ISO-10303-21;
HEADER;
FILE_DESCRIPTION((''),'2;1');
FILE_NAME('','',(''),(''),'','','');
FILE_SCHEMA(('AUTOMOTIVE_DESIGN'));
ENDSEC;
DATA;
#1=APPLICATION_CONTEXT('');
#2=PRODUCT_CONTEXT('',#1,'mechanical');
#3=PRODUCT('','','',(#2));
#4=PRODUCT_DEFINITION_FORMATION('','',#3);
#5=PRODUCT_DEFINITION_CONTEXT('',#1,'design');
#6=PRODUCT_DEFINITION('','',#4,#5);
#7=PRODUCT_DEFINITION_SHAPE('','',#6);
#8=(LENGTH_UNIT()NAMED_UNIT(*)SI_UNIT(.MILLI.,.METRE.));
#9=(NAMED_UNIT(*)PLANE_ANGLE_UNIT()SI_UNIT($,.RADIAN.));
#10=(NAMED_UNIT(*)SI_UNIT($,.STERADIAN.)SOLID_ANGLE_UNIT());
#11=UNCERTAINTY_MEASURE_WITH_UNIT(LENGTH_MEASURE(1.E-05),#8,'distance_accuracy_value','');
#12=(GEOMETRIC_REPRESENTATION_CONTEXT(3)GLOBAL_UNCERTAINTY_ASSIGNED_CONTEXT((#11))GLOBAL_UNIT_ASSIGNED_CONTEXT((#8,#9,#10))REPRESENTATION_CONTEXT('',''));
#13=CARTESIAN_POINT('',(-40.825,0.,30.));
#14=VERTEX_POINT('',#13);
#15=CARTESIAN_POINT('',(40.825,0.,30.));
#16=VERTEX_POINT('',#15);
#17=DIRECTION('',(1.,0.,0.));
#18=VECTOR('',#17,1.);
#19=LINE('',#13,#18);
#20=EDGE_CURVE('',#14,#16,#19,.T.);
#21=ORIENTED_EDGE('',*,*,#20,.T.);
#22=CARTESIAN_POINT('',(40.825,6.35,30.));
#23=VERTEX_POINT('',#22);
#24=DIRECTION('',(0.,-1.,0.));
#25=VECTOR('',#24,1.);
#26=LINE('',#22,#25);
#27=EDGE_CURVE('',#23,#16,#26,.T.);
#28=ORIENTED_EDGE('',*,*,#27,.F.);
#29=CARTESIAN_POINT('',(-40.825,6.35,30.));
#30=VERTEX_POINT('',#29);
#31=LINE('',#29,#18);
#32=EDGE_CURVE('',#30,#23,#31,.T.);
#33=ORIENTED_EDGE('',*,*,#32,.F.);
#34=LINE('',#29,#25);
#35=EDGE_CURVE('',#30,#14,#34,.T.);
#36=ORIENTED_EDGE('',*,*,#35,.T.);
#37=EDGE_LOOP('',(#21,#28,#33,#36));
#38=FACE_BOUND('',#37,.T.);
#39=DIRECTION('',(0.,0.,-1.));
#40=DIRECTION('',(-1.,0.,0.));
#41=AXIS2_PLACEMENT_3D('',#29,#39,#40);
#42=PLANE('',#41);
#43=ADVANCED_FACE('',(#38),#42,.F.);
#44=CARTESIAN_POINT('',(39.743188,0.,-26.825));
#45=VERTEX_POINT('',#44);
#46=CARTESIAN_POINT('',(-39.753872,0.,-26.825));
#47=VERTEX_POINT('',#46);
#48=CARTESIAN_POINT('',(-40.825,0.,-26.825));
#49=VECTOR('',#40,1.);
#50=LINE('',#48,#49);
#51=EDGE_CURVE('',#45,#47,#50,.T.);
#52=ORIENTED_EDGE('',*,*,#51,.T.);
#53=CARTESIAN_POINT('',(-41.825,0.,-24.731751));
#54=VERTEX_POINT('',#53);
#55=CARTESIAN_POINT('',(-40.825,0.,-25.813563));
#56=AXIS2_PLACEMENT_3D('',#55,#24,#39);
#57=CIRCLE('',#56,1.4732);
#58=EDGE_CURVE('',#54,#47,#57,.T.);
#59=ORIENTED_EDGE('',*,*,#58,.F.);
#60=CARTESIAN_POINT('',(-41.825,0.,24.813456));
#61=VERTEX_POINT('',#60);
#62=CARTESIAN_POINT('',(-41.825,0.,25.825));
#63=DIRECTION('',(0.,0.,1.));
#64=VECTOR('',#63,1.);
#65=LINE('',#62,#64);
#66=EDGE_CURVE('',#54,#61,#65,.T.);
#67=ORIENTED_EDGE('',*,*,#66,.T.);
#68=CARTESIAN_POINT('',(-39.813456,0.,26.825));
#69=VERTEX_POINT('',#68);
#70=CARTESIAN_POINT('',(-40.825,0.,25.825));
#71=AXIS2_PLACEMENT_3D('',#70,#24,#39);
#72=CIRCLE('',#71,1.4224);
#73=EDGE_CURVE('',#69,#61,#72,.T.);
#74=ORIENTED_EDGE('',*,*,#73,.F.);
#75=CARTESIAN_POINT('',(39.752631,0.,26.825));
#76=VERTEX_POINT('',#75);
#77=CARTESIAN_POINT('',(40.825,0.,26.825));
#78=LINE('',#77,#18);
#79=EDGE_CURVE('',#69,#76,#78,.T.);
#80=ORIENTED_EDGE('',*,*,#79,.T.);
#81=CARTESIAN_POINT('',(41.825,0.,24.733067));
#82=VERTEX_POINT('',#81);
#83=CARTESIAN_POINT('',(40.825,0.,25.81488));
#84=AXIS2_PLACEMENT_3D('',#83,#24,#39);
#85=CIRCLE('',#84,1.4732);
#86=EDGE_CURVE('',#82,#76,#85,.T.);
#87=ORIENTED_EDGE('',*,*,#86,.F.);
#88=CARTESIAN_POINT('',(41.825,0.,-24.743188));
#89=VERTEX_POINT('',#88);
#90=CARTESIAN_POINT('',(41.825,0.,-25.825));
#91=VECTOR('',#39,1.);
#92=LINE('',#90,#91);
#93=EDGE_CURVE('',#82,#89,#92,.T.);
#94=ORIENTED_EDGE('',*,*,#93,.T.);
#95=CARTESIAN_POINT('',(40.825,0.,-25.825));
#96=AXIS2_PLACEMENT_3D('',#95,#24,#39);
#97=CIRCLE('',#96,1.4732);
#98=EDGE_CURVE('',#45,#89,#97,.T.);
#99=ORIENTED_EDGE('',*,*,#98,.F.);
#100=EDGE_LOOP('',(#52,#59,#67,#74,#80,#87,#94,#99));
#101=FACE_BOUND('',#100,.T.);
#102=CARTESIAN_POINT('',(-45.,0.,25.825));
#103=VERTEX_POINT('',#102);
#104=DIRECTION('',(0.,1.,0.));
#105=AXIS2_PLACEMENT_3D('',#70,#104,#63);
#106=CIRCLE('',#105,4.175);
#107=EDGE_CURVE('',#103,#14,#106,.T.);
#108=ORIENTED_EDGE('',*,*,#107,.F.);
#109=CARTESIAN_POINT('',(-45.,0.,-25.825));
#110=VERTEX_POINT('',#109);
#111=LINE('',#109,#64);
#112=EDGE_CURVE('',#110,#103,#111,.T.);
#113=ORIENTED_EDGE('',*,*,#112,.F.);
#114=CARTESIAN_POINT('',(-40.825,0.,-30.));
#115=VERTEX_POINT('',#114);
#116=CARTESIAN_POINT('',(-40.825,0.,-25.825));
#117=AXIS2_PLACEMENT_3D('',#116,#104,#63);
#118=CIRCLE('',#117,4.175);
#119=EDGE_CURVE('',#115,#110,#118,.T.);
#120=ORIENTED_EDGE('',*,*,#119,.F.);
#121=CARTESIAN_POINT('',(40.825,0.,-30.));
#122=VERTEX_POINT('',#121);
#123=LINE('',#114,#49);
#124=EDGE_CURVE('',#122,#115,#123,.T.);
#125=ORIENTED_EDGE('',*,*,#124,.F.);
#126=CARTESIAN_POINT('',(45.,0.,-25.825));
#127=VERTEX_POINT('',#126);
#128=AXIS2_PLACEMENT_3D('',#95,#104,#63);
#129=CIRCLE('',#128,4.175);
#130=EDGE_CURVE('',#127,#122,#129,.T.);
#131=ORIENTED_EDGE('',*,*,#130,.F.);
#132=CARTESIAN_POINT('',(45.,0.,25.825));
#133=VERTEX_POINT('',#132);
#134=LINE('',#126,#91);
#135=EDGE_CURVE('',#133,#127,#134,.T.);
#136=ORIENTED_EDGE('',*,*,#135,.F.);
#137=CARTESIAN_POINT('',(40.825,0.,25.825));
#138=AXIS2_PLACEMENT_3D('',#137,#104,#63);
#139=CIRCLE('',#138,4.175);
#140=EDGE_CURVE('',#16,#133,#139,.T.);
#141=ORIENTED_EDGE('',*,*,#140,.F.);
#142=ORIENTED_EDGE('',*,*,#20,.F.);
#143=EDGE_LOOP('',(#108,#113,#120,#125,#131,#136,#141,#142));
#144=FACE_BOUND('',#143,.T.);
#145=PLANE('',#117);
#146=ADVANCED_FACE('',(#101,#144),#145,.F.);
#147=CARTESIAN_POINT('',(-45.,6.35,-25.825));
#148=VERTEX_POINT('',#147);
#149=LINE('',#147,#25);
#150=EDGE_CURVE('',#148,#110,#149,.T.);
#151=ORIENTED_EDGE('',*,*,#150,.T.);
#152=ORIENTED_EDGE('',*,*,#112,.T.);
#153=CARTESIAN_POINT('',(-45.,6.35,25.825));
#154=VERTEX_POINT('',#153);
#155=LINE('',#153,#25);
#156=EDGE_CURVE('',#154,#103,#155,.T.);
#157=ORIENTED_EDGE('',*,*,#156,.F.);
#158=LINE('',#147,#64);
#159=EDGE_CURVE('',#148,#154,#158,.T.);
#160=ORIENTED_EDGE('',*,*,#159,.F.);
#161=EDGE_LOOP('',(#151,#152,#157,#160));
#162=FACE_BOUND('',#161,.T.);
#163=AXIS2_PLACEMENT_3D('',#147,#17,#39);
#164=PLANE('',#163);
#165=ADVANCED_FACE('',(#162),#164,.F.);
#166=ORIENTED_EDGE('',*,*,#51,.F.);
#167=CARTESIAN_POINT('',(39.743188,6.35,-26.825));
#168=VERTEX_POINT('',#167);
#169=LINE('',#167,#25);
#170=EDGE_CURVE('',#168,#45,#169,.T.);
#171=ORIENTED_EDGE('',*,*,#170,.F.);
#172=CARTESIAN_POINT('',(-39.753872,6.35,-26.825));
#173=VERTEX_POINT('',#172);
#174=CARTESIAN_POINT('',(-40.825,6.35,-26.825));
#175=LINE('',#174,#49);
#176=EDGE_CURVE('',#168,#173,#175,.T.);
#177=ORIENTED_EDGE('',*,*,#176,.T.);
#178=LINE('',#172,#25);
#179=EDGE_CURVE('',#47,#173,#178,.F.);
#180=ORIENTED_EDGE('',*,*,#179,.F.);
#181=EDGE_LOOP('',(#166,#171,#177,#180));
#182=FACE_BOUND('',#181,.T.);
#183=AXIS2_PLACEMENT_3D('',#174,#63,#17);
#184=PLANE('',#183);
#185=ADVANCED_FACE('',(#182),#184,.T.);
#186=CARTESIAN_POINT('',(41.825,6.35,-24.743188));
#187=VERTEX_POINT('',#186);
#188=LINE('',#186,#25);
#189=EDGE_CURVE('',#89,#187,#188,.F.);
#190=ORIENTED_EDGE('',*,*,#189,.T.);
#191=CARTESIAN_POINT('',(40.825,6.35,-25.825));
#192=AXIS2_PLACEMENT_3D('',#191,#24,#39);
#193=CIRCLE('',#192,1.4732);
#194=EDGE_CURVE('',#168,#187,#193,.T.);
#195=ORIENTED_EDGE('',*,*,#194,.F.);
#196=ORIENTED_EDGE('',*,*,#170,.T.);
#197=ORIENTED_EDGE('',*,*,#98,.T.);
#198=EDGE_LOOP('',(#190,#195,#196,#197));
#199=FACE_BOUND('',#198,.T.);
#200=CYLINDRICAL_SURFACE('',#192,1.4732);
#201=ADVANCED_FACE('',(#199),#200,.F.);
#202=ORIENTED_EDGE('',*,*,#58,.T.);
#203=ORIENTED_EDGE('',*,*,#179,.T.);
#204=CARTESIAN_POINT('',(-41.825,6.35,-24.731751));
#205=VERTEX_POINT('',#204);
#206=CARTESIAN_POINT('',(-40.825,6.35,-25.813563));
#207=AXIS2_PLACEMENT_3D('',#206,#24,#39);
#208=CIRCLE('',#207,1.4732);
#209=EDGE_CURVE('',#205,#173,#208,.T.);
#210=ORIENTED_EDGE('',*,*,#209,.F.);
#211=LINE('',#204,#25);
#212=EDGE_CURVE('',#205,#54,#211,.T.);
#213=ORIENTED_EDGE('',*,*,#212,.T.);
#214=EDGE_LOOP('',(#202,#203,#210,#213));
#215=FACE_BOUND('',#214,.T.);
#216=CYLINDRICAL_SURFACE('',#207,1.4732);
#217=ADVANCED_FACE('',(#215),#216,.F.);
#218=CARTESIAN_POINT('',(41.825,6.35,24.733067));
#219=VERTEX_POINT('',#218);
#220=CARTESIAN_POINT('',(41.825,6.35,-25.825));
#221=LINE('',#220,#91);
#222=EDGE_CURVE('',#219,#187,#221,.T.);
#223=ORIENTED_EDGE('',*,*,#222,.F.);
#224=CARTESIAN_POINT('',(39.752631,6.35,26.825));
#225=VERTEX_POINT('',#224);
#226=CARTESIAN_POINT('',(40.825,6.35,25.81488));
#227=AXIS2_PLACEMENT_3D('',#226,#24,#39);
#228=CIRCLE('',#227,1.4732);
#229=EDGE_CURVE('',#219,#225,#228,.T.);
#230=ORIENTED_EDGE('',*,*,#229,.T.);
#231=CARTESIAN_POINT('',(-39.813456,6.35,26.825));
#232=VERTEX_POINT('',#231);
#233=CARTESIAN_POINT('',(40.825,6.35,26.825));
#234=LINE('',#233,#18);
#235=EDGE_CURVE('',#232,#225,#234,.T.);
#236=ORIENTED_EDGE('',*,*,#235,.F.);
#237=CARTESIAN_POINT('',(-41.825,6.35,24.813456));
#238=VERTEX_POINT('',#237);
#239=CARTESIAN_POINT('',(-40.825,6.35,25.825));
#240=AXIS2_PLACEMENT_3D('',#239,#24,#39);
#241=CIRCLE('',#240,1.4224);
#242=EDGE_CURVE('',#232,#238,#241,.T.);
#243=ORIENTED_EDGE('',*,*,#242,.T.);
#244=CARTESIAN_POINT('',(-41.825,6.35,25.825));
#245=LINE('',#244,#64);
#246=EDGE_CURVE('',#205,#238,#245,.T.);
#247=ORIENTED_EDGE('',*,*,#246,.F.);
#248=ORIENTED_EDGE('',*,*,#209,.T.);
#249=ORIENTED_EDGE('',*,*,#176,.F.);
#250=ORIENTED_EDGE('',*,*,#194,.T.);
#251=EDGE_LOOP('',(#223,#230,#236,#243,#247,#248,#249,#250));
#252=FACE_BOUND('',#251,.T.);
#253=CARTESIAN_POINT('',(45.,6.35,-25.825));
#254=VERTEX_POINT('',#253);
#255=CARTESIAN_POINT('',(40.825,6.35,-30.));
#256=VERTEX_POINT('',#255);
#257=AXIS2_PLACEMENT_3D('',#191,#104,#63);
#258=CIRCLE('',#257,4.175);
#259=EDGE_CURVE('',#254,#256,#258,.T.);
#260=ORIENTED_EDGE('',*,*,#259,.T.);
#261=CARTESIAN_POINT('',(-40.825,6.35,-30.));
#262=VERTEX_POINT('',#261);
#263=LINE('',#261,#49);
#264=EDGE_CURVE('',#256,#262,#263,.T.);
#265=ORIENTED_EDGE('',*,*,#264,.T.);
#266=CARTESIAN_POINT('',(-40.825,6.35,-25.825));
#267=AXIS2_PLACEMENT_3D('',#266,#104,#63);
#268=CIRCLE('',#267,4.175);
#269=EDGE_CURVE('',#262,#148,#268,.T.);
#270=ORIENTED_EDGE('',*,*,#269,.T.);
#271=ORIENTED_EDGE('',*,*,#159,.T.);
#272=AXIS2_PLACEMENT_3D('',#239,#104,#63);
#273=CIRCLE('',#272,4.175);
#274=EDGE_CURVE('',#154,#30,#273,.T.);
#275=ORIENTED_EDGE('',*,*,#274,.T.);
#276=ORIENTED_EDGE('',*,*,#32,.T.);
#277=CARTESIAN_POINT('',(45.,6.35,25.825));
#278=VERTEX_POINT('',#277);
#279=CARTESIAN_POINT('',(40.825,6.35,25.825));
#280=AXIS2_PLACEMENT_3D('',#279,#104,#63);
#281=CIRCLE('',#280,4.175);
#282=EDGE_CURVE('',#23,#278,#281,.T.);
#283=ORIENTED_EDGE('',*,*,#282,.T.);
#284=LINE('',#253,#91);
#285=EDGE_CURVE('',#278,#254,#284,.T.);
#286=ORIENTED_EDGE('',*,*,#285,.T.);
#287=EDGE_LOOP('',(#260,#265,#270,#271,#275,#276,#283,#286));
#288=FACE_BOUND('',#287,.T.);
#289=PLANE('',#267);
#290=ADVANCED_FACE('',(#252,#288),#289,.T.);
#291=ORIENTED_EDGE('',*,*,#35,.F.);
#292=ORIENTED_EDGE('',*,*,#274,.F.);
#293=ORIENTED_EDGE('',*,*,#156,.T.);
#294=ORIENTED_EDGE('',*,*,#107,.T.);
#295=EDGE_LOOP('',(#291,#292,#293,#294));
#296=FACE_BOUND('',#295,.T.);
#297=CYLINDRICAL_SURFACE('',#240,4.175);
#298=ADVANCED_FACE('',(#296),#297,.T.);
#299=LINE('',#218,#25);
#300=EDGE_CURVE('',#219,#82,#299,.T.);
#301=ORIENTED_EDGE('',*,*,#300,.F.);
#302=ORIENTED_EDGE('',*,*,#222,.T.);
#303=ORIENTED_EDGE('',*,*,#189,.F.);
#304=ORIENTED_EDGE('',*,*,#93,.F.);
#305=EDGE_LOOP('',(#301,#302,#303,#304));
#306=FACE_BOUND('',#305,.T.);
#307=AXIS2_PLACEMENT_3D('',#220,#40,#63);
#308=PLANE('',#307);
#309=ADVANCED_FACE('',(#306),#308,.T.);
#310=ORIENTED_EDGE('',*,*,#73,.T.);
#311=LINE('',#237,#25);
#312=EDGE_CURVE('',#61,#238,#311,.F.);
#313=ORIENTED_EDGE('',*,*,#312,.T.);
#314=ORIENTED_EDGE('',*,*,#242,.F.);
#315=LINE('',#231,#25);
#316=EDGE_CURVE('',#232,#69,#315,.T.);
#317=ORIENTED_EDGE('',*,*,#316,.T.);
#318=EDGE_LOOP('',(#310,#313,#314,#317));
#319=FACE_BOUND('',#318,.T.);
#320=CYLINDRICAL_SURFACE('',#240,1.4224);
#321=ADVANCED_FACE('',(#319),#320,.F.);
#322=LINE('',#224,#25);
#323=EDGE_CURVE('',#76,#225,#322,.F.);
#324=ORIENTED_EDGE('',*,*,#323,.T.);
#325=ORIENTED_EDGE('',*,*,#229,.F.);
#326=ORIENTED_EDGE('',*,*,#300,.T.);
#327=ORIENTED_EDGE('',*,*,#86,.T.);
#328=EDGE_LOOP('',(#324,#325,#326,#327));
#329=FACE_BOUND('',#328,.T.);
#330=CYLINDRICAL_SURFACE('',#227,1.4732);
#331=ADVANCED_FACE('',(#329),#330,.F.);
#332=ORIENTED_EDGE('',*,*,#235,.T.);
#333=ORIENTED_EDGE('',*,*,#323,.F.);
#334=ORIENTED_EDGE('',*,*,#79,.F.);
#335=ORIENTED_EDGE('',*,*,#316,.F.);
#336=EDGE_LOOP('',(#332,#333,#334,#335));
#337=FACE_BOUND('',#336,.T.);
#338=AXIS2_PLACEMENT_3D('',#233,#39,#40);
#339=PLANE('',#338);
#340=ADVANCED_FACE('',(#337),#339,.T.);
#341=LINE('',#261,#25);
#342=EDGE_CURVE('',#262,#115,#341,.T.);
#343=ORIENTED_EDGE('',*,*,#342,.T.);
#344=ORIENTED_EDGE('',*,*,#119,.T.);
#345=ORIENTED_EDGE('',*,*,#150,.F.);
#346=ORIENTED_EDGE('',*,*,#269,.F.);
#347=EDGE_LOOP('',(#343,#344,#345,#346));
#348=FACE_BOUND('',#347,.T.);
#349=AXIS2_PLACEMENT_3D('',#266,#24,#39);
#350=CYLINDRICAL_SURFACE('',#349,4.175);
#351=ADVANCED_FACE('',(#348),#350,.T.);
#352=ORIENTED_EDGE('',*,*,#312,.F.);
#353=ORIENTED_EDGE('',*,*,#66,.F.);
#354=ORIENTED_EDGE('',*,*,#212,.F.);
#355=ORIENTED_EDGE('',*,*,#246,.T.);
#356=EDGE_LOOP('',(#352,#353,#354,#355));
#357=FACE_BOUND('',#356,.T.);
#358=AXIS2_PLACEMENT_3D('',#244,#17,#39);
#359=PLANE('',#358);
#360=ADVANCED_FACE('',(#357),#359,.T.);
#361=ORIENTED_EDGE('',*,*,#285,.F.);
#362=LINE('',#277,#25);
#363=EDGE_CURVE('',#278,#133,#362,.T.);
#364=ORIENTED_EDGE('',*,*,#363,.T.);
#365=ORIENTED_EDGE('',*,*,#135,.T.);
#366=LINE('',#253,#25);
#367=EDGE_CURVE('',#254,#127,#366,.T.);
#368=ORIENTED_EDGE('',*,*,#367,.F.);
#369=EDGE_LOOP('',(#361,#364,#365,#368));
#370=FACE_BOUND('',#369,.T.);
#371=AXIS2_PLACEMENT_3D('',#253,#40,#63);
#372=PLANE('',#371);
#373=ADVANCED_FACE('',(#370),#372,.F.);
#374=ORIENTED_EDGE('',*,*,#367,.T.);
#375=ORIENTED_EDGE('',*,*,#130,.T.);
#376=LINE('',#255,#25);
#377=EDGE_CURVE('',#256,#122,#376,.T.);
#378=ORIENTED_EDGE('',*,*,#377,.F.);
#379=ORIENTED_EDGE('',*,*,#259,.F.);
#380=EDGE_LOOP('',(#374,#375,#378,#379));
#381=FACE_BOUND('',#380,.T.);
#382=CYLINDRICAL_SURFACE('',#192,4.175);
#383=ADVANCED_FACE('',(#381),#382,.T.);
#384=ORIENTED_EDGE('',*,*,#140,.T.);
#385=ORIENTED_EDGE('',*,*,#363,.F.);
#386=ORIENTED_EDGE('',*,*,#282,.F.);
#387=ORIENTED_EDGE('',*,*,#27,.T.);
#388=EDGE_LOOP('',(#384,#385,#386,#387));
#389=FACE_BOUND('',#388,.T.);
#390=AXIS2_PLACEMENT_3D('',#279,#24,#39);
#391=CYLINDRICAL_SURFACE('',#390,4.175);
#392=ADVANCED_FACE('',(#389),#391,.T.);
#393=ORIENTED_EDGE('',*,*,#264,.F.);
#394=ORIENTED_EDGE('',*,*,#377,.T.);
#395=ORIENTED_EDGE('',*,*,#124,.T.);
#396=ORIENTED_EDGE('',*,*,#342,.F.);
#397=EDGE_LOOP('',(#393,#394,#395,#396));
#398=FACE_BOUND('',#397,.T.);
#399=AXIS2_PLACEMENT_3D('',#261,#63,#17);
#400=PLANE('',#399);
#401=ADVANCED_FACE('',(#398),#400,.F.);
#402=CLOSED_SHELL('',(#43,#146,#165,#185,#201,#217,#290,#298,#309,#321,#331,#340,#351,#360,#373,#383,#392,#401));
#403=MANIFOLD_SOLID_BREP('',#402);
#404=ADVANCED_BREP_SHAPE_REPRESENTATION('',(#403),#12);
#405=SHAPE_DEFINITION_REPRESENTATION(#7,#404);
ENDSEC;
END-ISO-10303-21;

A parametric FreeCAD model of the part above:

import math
import FreeCAD as App
import Part
import Sketcher

V = App.Vector
Q = App.Units.Quantity

doc = App.newDocument("Part")
body = doc.addObject("PartDesign::Body", "Body")

sketch1 = body.newObject("Sketcher::SketchObject", "Sketch")
sketch1.AttachmentSupport = (doc.getObject("XZ_Plane"), [""])
sketch1.MapMode = "FlatFace"
sketch1.addGeometry([
    Part.LineSegment(V(-45, -25.8, 0), V(-45, 25.8, 0)),
    Part.ArcOfCircle(Part.Circle(V(-40.8, 25.8, 0), V(0, 0, 1), 4.2), math.radians(90), math.radians(180)),
    Part.LineSegment(V(-40.8, 30, 0), V(40.8, 30, 0)),
    Part.ArcOfCircle(Part.Circle(V(40.8, 25.8, 0), V(0, 0, 1), 4.2), math.radians(0), math.radians(90)),
    Part.LineSegment(V(45, 25.8, 0), V(45, -25.8, 0)),
    Part.ArcOfCircle(Part.Circle(V(40.8, -25.8, 0), V(0, 0, 1), 4.2), math.radians(-90), math.radians(0)),
    Part.LineSegment(V(40.8, -30, 0), V(-40.8, -30, 0)),
    Part.ArcOfCircle(Part.Circle(V(-40.8, -25.8, 0), V(0, 0, 1), 4.2), math.radians(-180), math.radians(-90)),
    Part.ArcOfCircle(Part.Circle(V(-40.8, 25.8, 0), V(0, 0, 1), 1), math.radians(90), math.radians(180)),
    Part.LineSegment(V(-41.8, 25.8, 0), V(-41.8, -25.8, 0)),
    Part.ArcOfCircle(Part.Circle(V(-40.8, -25.8, 0), V(0, 0, 1), 1), math.radians(-180), math.radians(-90)),
    Part.LineSegment(V(-40.8, -26.8, 0), V(40.8, -26.8, 0)),
    Part.ArcOfCircle(Part.Circle(V(40.8, -25.8, 0), V(0, 0, 1), 1), math.radians(-90), math.radians(0)),
    Part.LineSegment(V(41.8, -25.8, 0), V(41.8, 25.8, 0)),
    Part.ArcOfCircle(Part.Circle(V(40.8, 25.8, 0), V(0, 0, 1), 1), math.radians(0), math.radians(90)),
    Part.LineSegment(V(40.8, 26.8, 0), V(-40.8, 26.8, 0)),
], False)
sketch1.addConstraint([
    Sketcher.Constraint("Tangent", 0, 2, 1, 2),
    Sketcher.Constraint("Tangent", 1, 1, 2, 1),
    Sketcher.Constraint("Tangent", 2, 2, 3, 2),
    Sketcher.Constraint("Tangent", 3, 1, 4, 1),
    Sketcher.Constraint("Tangent", 4, 2, 5, 2),
    Sketcher.Constraint("Tangent", 5, 1, 6, 1),
    Sketcher.Constraint("Tangent", 6, 2, 7, 2),
    Sketcher.Constraint("Tangent", 7, 1, 0, 1),
    Sketcher.Constraint("Tangent", 8, 2, 9, 1),
    Sketcher.Constraint("Tangent", 9, 2, 10, 1),
    Sketcher.Constraint("Tangent", 10, 2, 11, 1),
    Sketcher.Constraint("Tangent", 11, 2, 12, 1),
    Sketcher.Constraint("Tangent", 12, 2, 13, 1),
    Sketcher.Constraint("Tangent", 13, 2, 14, 1),
    Sketcher.Constraint("Tangent", 14, 2, 15, 1),
    Sketcher.Constraint("Tangent", 15, 2, 8, 1),
    Sketcher.Constraint("Vertical", 0),
    Sketcher.Constraint("Horizontal", 2),
    Sketcher.Constraint("Vertical", 4),
    Sketcher.Constraint("Horizontal", 6),
    Sketcher.Constraint("Vertical", 9),
    Sketcher.Constraint("Horizontal", 11),
    Sketcher.Constraint("Vertical", 13),
    Sketcher.Constraint("Horizontal", 15),
    Sketcher.Constraint("Coincident", 8, 3, 1, 3),
    Sketcher.Constraint("Coincident", 10, 3, 7, 3),
    Sketcher.Constraint("Coincident", 12, 3, 5, 3),
    Sketcher.Constraint("Equal", 1, 3),
    Sketcher.Constraint("Equal", 3, 5),
    Sketcher.Constraint("Equal", 5, 7),
    Sketcher.Constraint("Equal", 12, 14),
    Sketcher.Constraint("Symmetric", 1, 3, 5, 3, -1, 1),
    Sketcher.Constraint("Radius", 1, Q("4.175 mm")),
    Sketcher.Constraint("Radius", 8, Q("1 mm")),
    Sketcher.Constraint("DistanceX", 2, 1, 2, 2, Q("81.65 mm")),
    Sketcher.Constraint("DistanceY", 0, 1, 0, 2, Q("51.65 mm")),
])
pad1 = body.newObject("PartDesign::Pad", "Pad")
pad1.Profile = sketch1
pad1.Length = Q("0.25 in")
pad1.Reversed = True

sketch2 = body.newObject("Sketcher::SketchObject", "Sketch001")
sketch2.AttachmentSupport = (doc.getObject("XZ_Plane"), [""])
sketch2.MapMode = "FlatFace"
sketch2.addGeometry([
    Part.Circle(V(-40.8, 25.8, 0), V(0, 0, 1), 1.4),
    Part.Circle(V(40.8, 25.8, 0), V(0, 0, 1), 1.5),
    Part.Circle(V(40.8, -25.8, 0), V(0, 0, 1), 1.5),
    Part.Circle(V(-40.8, -25.8, 0), V(0, 0, 1), 1.5),
], False)
sketch2.addConstraint([
    Sketcher.Constraint("Equal", 1, 2),
    Sketcher.Constraint("Equal", 2, 3),
    Sketcher.Constraint("Symmetric", 0, 3, 2, 3, -1, 1),
    Sketcher.Constraint("Vertical", 1, 3, 2, 3),
    Sketcher.Constraint("Vertical", 0, 3, 3, 3),
    Sketcher.Constraint("Diameter", 0, Q("0.112 in")),
    Sketcher.Constraint("Diameter", 1, Q("0.116 in")),
    Sketcher.Constraint("DistanceX", 0, 3, -1, 1, Q("40.825 mm")),
    Sketcher.Constraint("DistanceY", -1, 1, 0, 3, Q("25.825 mm")),
    Sketcher.Constraint("DistanceY", -1, 1, 1, 3, Q("25.81488 mm")),
    Sketcher.Constraint("DistanceY", 3, 3, -1, 1, Q("25.813563 mm")),
])
pocket1 = body.newObject("PartDesign::Pocket", "Pocket")
pocket1.Profile = sketch2
pocket1.Type = "ThroughAll"

doc.recompute()
